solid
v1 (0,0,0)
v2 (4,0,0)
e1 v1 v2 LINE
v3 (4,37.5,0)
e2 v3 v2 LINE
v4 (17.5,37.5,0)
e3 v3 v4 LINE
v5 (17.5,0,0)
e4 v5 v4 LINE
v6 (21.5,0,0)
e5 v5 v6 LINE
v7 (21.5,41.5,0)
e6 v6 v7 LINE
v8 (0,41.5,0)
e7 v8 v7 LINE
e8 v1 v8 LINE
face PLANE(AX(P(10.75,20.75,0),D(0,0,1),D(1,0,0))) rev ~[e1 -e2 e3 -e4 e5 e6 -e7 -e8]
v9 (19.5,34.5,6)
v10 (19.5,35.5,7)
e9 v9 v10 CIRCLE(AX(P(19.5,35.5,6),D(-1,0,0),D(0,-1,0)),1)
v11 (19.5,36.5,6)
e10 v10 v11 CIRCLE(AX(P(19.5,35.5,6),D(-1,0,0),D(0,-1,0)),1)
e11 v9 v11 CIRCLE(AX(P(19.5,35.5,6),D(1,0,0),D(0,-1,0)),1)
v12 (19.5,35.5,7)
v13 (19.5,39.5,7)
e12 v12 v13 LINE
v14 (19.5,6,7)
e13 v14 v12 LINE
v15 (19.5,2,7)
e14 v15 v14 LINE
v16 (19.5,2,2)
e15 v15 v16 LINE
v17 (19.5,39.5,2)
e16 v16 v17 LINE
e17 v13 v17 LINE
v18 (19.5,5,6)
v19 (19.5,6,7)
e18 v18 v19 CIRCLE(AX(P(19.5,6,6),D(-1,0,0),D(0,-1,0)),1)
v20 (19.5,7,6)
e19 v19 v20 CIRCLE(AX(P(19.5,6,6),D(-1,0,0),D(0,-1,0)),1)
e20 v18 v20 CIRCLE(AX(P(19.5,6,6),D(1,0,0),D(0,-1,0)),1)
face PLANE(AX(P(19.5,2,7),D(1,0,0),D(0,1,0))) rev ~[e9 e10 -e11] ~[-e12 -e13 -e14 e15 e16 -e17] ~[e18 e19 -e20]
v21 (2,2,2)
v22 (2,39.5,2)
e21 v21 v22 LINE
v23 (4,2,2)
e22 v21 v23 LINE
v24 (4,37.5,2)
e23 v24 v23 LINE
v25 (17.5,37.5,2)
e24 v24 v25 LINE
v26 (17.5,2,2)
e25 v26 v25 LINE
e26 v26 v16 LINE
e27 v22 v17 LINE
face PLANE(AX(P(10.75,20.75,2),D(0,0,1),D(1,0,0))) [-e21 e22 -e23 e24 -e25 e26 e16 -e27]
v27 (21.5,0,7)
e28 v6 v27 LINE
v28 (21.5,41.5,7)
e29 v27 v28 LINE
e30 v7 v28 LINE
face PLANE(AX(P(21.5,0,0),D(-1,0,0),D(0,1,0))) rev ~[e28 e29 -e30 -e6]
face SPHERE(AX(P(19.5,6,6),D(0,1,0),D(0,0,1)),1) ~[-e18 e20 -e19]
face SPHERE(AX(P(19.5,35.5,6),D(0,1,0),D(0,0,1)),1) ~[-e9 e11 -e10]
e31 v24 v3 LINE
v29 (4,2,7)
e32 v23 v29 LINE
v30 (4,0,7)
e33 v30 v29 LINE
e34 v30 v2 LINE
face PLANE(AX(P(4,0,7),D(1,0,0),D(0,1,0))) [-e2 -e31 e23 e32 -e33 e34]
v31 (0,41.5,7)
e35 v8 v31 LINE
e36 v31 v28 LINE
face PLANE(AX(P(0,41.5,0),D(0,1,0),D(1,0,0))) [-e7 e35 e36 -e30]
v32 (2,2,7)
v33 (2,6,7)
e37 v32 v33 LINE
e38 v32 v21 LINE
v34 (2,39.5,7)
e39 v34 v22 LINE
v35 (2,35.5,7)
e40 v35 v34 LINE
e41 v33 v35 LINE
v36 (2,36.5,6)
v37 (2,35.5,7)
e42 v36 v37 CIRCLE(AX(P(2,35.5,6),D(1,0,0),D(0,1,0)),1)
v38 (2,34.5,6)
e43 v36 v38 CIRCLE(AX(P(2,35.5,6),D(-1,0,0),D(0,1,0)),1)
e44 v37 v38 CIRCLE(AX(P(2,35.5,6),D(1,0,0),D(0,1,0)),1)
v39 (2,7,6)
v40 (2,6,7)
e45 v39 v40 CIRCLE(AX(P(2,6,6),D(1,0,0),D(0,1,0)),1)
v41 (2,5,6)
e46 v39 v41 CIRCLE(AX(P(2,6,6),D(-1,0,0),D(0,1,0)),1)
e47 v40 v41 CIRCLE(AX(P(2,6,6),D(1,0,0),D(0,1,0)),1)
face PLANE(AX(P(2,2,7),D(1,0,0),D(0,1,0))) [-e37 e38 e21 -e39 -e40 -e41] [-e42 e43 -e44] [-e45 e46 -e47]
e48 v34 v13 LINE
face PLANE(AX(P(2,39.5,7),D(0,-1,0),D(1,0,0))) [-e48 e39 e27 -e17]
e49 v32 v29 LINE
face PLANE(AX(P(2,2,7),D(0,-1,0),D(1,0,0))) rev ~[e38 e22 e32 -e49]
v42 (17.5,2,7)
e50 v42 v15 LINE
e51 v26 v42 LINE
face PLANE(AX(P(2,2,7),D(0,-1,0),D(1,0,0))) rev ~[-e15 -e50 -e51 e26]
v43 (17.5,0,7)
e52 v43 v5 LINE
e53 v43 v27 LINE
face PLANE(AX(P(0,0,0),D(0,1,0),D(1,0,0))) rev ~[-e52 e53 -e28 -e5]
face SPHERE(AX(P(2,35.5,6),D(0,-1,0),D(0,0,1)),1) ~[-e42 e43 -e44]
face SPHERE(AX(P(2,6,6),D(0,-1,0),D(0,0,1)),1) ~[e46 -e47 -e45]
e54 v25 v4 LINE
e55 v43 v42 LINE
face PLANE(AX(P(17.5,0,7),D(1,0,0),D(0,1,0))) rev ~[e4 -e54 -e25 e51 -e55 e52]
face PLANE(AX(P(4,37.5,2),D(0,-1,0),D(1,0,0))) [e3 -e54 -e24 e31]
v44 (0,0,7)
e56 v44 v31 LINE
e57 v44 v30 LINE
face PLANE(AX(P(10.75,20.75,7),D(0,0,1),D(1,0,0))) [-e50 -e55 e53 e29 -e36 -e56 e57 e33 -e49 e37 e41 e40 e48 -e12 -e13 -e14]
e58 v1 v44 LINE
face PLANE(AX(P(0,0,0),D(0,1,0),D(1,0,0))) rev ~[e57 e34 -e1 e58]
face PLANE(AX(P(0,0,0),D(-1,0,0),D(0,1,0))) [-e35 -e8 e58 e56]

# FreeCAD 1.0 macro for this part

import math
import FreeCAD as App
import Part
import Sketcher

V = App.Vector


def add_polygon(sketch, points):
    """Adds a closed chain of lines whose ends are joined by coincident constraints."""
    first, n = sketch.GeometryCount, len(points)
    for a, b in zip(points, points[1:] + points[:1]):
        sketch.addGeometry(Part.LineSegment(App.Vector(*a, 0), App.Vector(*b, 0)), False)
    for i in range(n):
        sketch.addConstraint(Sketcher.Constraint("Coincident", first + i, 2, first + (i + 1) % n, 1))

doc = App.newDocument("Part")
body = doc.addObject("PartDesign::Body", "Body")

# Sketch on XY plane
sketch1 = body.newObject("Sketcher::SketchObject", "Sketch")
sketch1.AttachmentSupport = (doc.getObject("XY_Plane"), [""])
sketch1.MapMode = "FlatFace"
add_polygon(sketch1, [(0, 42), (0, 0), (22, 0), (22, 42)])  # lines 0-3
sketch1.addConstraint([
    Sketcher.Constraint("Vertical", 0),
    Sketcher.Constraint("Horizontal", 1),
    Sketcher.Constraint("Vertical", 2),
    Sketcher.Constraint("Horizontal", 3),
    Sketcher.Constraint("Coincident", 0, 2, -1, 1),
    Sketcher.Constraint("DistanceX", 1, 1, 1, 2, 21.5),
    Sketcher.Constraint("DistanceY", 0, 2, 0, 1, 41.5),
])
pad1 = body.newObject("PartDesign::Pad", "Pad")
pad1.Profile = sketch1
pad1.Length = 7

# Sketch on XY plane
sketch2 = body.newObject("Sketcher::SketchObject", "Sketch001")
sketch2.AttachmentSupport = (doc.getObject("XY_Plane"), [""])
sketch2.MapMode = "FlatFace"
sketch2.AttachmentOffset = App.Placement(V(0, 0, 7), App.Rotation())
add_polygon(sketch2, [(2, 40), (2, 2), (20, 2), (20, 40)])  # lines 0-3
sketch2.addConstraint([
    Sketcher.Constraint("Vertical", 0),
    Sketcher.Constraint("Horizontal", 1),
    Sketcher.Constraint("Vertical", 2),
    Sketcher.Constraint("Horizontal", 3),
    Sketcher.Constraint("DistanceX", 1, 1, 1, 2, 17.5),
    Sketcher.Constraint("DistanceY", 0, 2, 0, 1, 37.5),
    Sketcher.Constraint("DistanceX", -1, 1, 0, 2, 2.0),
    Sketcher.Constraint("DistanceY", -1, 1, 0, 2, 2.0),
])
pocket1 = body.newObject("PartDesign::Pocket", "Pocket")
pocket1.Profile = sketch2
pocket1.Length = 5

# Sketch on XY plane
sketch3 = body.newObject("Sketcher::SketchObject", "Sketch002")
sketch3.AttachmentSupport = (doc.getObject("XY_Plane"), [""])
sketch3.MapMode = "FlatFace"
sketch3.AttachmentOffset = App.Placement(V(0, 0, 2), App.Rotation())
add_polygon(sketch3, [(4, 38), (4, 4), (18, 4), (18, 38)])  # lines 0-3
sketch3.addConstraint([
    Sketcher.Constraint("Vertical", 0),
    Sketcher.Constraint("Horizontal", 1),
    Sketcher.Constraint("Vertical", 2),
    Sketcher.Constraint("Horizontal", 3),
    Sketcher.Constraint("DistanceX", 1, 1, 1, 2, 13.5),
    Sketcher.Constraint("DistanceY", 0, 2, 0, 1, 33.5),
    Sketcher.Constraint("DistanceX", -1, 1, 0, 2, 4.0),
    Sketcher.Constraint("DistanceY", -1, 1, 0, 2, 4.0),
])
pocket2 = body.newObject("PartDesign::Pocket", "Pocket001")
pocket2.Profile = sketch3
pocket2.Type = "ThroughAll"

# Sketch on XY plane
sketch4 = body.newObject("Sketcher::SketchObject", "Sketch003")
sketch4.AttachmentSupport = (doc.getObject("XY_Plane"), [""])
sketch4.MapMode = "FlatFace"
sketch4.AttachmentOffset = App.Placement(V(0, 0, 7), App.Rotation())
add_polygon(sketch4, [(4, 4), (4, 0), (17.5, 0), (17.5, 4)])  # lines 0-3
sketch4.addConstraint([
    Sketcher.Constraint("Vertical", 0),
    Sketcher.Constraint("Horizontal", 1),
    Sketcher.Constraint("Vertical", 2),
    Sketcher.Constraint("Horizontal", 3),
    Sketcher.Constraint("PointOnObject", 0, 2, -1),
    Sketcher.Constraint("DistanceY", 0, 2, 0, 1, 4.0),
    Sketcher.Constraint("DistanceX", 1, 1, 1, 2, 13.5),
    Sketcher.Constraint("DistanceX", -1, 1, 0, 2, 4.0),
])
pocket3 = body.newObject("PartDesign::Pocket", "Pocket002")
pocket3.Profile = sketch4
pocket3.Type = "ThroughAll"

# Sketch on YZ plane
sketch5 = body.newObject("Sketcher::SketchObject", "Sketch004")
sketch5.AttachmentSupport = (doc.getObject("YZ_Plane"), [""])
sketch5.MapMode = "FlatFace"
sketch5.AttachmentOffset = App.Placement(V(0, 0, 2), App.Rotation())
sketch5.addGeometry([
    Part.ArcOfCircle(Part.Circle(V(6, 6, 0), V(0, 0, 1), 1), math.radians(0), math.radians(180)),
    Part.LineSegment(V(5, 6, 0), V(7, 6, 0)),
    Part.ArcOfCircle(Part.Circle(V(35.5, 6, 0), V(0, 0, 1), 1), math.radians(0), math.radians(180)),
    Part.LineSegment(V(34.5, 6, 0), V(36.5, 6, 0)),
], False)
sketch5.addGeometry(Part.LineSegment(V(36.5, 6, 0), V(5, 6, 0)), True)  # axis
sketch5.addConstraint([
    Sketcher.Constraint("Coincident", 0, 1, 1, 2),
    Sketcher.Constraint("Coincident", 1, 1, 0, 2),
    Sketcher.Constraint("Coincident", 2, 1, 3, 2),
    Sketcher.Constraint("Coincident", 3, 1, 2, 2),
    Sketcher.Constraint("Horizontal", 1),
    Sketcher.Constraint("Horizontal", 3),
    Sketcher.Constraint("Horizontal", 4),
    Sketcher.Constraint("Coincident", 4, 1, 2, 1),
    Sketcher.Constraint("Coincident", 4, 2, 1, 1),
    Sketcher.Constraint("Equal", 0, 2),
    Sketcher.Constraint("Horizontal", 0, 3, 2, 3),
    Sketcher.Constraint("Horizontal", 2, 3, 0, 1),
    Sketcher.Constraint("Radius", 0, 1.0),
    Sketcher.Constraint("DistanceX", 4, 2, 4, 1, 31.5),
    Sketcher.Constraint("DistanceX", -1, 1, 0, 3, 6.0),
    Sketcher.Constraint("DistanceY", -1, 1, 0, 3, 6.0),
])
revolution = body.newObject("PartDesign::Revolution", "Revolution")
revolution.Profile = sketch5
revolution.ReferenceAxis = (sketch5, ["Axis0"])
revolution.Angle = 180
revolution.Reversed = True

# Sketch on YZ plane
sketch6 = body.newObject("Sketcher::SketchObject", "Sketch005")
sketch6.AttachmentSupport = (doc.getObject("YZ_Plane"), [""])
sketch6.MapMode = "FlatFace"
sketch6.AttachmentOffset = App.Placement(V(0, 0, 19.5), App.Rotation())
sketch6.addGeometry([
    Part.ArcOfCircle(Part.Circle(V(35.5, 6, 0), V(0, 0, 1), 1), math.radians(0), math.radians(180)),
    Part.LineSegment(V(36.5, 6, 0), V(34.5, 6, 0)),
    Part.ArcOfCircle(Part.Circle(V(6, 6, 0), V(0, 0, 1), 1), math.radians(0), math.radians(180)),
    Part.LineSegment(V(7, 6, 0), V(5, 6, 0)),
], False)
sketch6.addGeometry(Part.LineSegment(V(5, 6, 0), V(36.5, 6, 0)), True)  # axis
sketch6.addConstraint([
    Sketcher.Constraint("Coincident", 0, 1, 1, 1),
    Sketcher.Constraint("Coincident", 1, 2, 0, 2),
    Sketcher.Constraint("Coincident", 2, 1, 3, 1),
    Sketcher.Constraint("Coincident", 3, 2, 2, 2),
    Sketcher.Constraint("Horizontal", 1),
    Sketcher.Constraint("Horizontal", 3),
    Sketcher.Constraint("Horizontal", 4),
    Sketcher.Constraint("Coincident", 4, 1, 3, 2),
    Sketcher.Constraint("Coincident", 4, 2, 0, 1),
    Sketcher.Constraint("Equal", 0, 2),
    Sketcher.Constraint("Horizontal", 0, 3, 2, 3),
    Sketcher.Constraint("Horizontal", 2, 3, 0, 1),
    Sketcher.Constraint("Radius", 0, 1.0),
    Sketcher.Constraint("DistanceX", 4, 1, 4, 2, 31.5),
    Sketcher.Constraint("DistanceY", -1, 1, 0, 3, 6.0),
    Sketcher.Constraint("DistanceX", -1, 1, 2, 3, 6.0),
])
revolution2 = body.newObject("PartDesign::Revolution", "Revolution001")
revolution2.Profile = sketch6
revolution2.ReferenceAxis = (sketch6, ["Axis0"])
revolution2.Angle = 180
revolution2.Reversed = True

doc.recompute()
